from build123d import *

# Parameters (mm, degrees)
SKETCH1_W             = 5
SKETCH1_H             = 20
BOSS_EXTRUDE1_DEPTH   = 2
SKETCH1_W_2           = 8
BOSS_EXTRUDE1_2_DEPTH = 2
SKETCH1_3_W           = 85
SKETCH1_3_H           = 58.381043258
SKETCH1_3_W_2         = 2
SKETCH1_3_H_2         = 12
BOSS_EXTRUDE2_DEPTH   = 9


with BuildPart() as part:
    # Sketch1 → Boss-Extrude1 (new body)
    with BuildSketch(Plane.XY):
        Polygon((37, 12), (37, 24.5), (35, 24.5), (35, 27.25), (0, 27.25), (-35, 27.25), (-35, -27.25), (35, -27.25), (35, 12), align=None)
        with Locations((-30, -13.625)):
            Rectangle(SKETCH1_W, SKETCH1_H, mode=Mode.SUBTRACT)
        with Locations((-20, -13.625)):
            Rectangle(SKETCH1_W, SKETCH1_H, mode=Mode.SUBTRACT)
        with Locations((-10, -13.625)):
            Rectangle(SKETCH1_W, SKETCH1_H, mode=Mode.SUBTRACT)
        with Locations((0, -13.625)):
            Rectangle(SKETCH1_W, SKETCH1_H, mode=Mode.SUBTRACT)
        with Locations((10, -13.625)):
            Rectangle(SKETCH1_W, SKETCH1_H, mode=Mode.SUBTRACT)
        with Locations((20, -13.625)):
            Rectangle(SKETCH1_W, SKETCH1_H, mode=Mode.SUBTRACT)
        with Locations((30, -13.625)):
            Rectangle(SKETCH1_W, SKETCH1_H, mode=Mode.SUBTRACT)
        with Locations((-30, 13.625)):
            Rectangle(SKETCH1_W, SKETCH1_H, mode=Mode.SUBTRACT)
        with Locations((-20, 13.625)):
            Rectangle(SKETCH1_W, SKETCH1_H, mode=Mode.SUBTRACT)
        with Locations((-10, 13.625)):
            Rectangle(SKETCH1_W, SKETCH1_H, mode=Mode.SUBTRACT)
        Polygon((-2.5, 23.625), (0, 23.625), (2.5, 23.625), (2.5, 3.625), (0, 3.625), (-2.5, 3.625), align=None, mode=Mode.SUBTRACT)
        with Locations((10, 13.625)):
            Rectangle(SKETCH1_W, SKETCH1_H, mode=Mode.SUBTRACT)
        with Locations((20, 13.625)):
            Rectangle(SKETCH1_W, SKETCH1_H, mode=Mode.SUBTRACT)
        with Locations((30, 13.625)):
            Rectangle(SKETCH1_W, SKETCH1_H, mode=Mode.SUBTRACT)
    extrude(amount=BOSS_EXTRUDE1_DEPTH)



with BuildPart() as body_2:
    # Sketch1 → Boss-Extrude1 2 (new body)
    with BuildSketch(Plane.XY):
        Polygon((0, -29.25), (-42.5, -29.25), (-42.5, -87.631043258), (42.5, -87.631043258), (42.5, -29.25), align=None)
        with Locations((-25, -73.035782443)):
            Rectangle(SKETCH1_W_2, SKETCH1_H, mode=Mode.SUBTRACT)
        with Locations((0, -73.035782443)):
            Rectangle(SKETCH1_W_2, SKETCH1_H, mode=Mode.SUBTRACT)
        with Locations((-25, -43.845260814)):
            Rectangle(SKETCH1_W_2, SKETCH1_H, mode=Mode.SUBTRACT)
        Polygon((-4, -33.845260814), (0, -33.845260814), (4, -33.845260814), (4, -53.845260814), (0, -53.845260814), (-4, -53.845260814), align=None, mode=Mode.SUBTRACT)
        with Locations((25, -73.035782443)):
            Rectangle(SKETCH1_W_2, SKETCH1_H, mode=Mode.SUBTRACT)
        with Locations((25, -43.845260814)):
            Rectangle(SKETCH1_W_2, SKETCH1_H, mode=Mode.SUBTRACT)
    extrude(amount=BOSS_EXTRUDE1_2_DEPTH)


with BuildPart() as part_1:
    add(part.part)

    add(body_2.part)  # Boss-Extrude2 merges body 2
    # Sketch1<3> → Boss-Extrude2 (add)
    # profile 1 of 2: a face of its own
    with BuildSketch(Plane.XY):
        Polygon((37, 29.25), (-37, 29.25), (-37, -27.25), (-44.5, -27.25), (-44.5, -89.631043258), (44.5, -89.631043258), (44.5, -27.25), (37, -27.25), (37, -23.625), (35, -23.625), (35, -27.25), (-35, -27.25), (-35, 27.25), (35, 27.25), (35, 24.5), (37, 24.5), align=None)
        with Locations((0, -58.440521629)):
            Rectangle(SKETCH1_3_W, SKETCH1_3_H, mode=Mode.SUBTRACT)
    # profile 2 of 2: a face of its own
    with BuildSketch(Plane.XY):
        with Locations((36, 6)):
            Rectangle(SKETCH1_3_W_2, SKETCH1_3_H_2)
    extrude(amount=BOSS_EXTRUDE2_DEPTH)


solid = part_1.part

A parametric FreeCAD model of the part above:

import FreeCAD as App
import Part
import Sketcher

V = App.Vector
Q = App.Units.Quantity


def add_polygon(sketch, points):
    """Adds a closed chain of lines whose ends are joined by coincident constraints."""
    first, n = sketch.GeometryCount, len(points)
    for a, b in zip(points, points[1:] + points[:1]):
        sketch.addGeometry(Part.LineSegment(App.Vector(*a, 0), App.Vector(*b, 0)), False)
    for i in range(n):
        sketch.addConstraint(Sketcher.Constraint("Coincident", first + i, 2, first + (i + 1) % n, 1))

doc = App.newDocument("Part")
body = doc.addObject("PartDesign::Body", "Body")

# Sketch on XY plane
sketch1 = body.newObject("Sketcher::SketchObject", "Sketch")
sketch1.AttachmentSupport = (doc.getObject("XY_Plane"), [""])
sketch1.MapMode = "FlatFace"
add_polygon(sketch1, [(37, 12), (37, 24.5), (35, 24.5), (35, 27.2), (-35, 27.2), (-35, -27.2), (35, -27.2), (35, 12)])  # lines 0-7
add_polygon(sketch1, [(-27.5, -23.6), (-32.5, -23.6), (-32.5, -3.6), (-27.5, -3.6)])  # lines 8-11
add_polygon(sketch1, [(-17.5, -23.6), (-22.5, -23.6), (-22.5, -3.6), (-17.5, -3.6)])  # lines 12-15
add_polygon(sketch1, [(-7.5, -23.6), (-12.5, -23.6), (-12.5, -3.6), (-7.5, -3.6)])  # lines 16-19
add_polygon(sketch1, [(2.5, -23.6), (-2.5, -23.6), (-2.5, -3.6), (2.5, -3.6)])  # lines 20-23
add_polygon(sketch1, [(12.5, -23.6), (7.5, -23.6), (7.5, -3.6), (12.5, -3.6)])  # lines 24-27
add_polygon(sketch1, [(22.5, -23.6), (17.5, -23.6), (17.5, -3.6), (22.5, -3.6)])  # lines 28-31
add_polygon(sketch1, [(32.5, -23.6), (27.5, -23.6), (27.5, -3.6), (32.5, -3.6)])  # lines 32-35
add_polygon(sketch1, [(-27.5, 3.6), (-32.5, 3.6), (-32.5, 23.6), (-27.5, 23.6)])  # lines 36-39
add_polygon(sketch1, [(-17.5, 3.6), (-22.5, 3.6), (-22.5, 23.6), (-17.5, 23.6)])  # lines 40-43
add_polygon(sketch1, [(-7.5, 3.6), (-12.5, 3.6), (-12.5, 23.6), (-7.5, 23.6)])  # lines 44-47
add_polygon(sketch1, [(-2.5, 3.6), (-2.5, 23.6), (2.5, 23.6), (2.5, 3.6)])  # lines 48-51
add_polygon(sketch1, [(12.5, 3.6), (7.5, 3.6), (7.5, 23.6), (12.5, 23.6)])  # lines 52-55
add_polygon(sketch1, [(22.5, 3.6), (17.5, 3.6), (17.5, 23.6), (22.5, 23.6)])  # lines 56-59
add_polygon(sketch1, [(32.5, 3.6), (27.5, 3.6), (27.5, 23.6), (32.5, 23.6)])  # lines 60-63
sketch1.addConstraint(Sketcher.Constraint("Vertical", 0))
sketch1.addConstraint(Sketcher.Constraint("Horizontal", 1))
sketch1.addConstraint(Sketcher.Constraint("Vertical", 2))
sketch1.addConstraint(Sketcher.Constraint("Horizontal", 3))
sketch1.addConstraint(Sketcher.Constraint("Vertical", 4))
sketch1.addConstraint(Sketcher.Constraint("Horizontal", 5))
sketch1.addConstraint(Sketcher.Constraint("Vertical", 6))
sketch1.addConstraint(Sketcher.Constraint("Horizontal", 7))
sketch1.addConstraint(Sketcher.Constraint("Horizontal", 8))
sketch1.addConstraint(Sketcher.Constraint("Vertical", 9))
sketch1.addConstraint(Sketcher.Constraint("Horizontal", 10))
sketch1.addConstraint(Sketcher.Constraint("Vertical", 11))
sketch1.addConstraint(Sketcher.Constraint("Horizontal", 12))
sketch1.addConstraint(Sketcher.Constraint("Vertical", 13))
sketch1.addConstraint(Sketcher.Constraint("Horizontal", 14))
sketch1.addConstraint(Sketcher.Constraint("Vertical", 15))
sketch1.addConstraint(Sketcher.Constraint("Horizontal", 16))
sketch1.addConstraint(Sketcher.Constraint("Vertical", 17))
sketch1.addConstraint(Sketcher.Constraint("Horizontal", 18))
sketch1.addConstraint(Sketcher.Constraint("Vertical", 19))
sketch1.addConstraint(Sketcher.Constraint("Horizontal", 20))
sketch1.addConstraint(Sketcher.Constraint("Vertical", 21))
sketch1.addConstraint(Sketcher.Constraint("Horizontal", 22))
sketch1.addConstraint(Sketcher.Constraint("Vertical", 23))
sketch1.addConstraint(Sketcher.Constraint("Horizontal", 24))
sketch1.addConstraint(Sketcher.Constraint("Vertical", 25))
sketch1.addConstraint(Sketcher.Constraint("Horizontal", 26))
sketch1.addConstraint(Sketcher.Constraint("Vertical", 27))
sketch1.addConstraint(Sketcher.Constraint("Horizontal", 28))
sketch1.addConstraint(Sketcher.Constraint("Vertical", 29))
sketch1.addConstraint(Sketcher.Constraint("Horizontal", 30))
sketch1.addConstraint(Sketcher.Constraint("Vertical", 31))
sketch1.addConstraint(Sketcher.Constraint("Horizontal", 32))
sketch1.addConstraint(Sketcher.Constraint("Vertical", 33))
sketch1.addConstraint(Sketcher.Constraint("Horizontal", 34))
sketch1.addConstraint(Sketcher.Constraint("Vertical", 35))
sketch1.addConstraint(Sketcher.Constraint("Horizontal", 36))
sketch1.addConstraint(Sketcher.Constraint("Vertical", 37))
sketch1.addConstraint(Sketcher.Constraint("Horizontal", 38))
sketch1.addConstraint(Sketcher.Constraint("Vertical", 39))
sketch1.addConstraint(Sketcher.Constraint("Horizontal", 40))
sketch1.addConstraint(Sketcher.Constraint("Vertical", 41))
sketch1.addConstraint(Sketcher.Constraint("Horizontal", 42))
sketch1.addConstraint(Sketcher.Constraint("Vertical", 43))
sketch1.addConstraint(Sketcher.Constraint("Horizontal", 44))
sketch1.addConstraint(Sketcher.Constraint("Vertical", 45))
sketch1.addConstraint(Sketcher.Constraint("Horizontal", 46))
sketch1.addConstraint(Sketcher.Constraint("Vertical", 47))
sketch1.addConstraint(Sketcher.Constraint("Vertical", 48))
sketch1.addConstraint(Sketcher.Constraint("Horizontal", 49))
sketch1.addConstraint(Sketcher.Constraint("Vertical", 50))
sketch1.addConstraint(Sketcher.Constraint("Horizontal", 51))
sketch1.addConstraint(Sketcher.Constraint("Horizontal", 52))
sketch1.addConstraint(Sketcher.Constraint("Vertical", 53))
sketch1.addConstraint(Sketcher.Constraint("Horizontal", 54))
sketch1.addConstraint(Sketcher.Constraint("Vertical", 55))
sketch1.addConstraint(Sketcher.Constraint("Horizontal", 56))
sketch1.addConstraint(Sketcher.Constraint("Vertical", 57))
sketch1.addConstraint(Sketcher.Constraint("Horizontal", 58))
sketch1.addConstraint(Sketcher.Constraint("Vertical", 59))
sketch1.addConstraint(Sketcher.Constraint("Horizontal", 60))
sketch1.addConstraint(Sketcher.Constraint("Vertical", 61))
sketch1.addConstraint(Sketcher.Constraint("Horizontal", 62))
sketch1.addConstraint(Sketcher.Constraint("Vertical", 63))
sketch1.addConstraint(Sketcher.Constraint("Symmetric", 2, 2, 4, 2, -1, 1))
sketch1.addConstraint(Sketcher.Constraint("Symmetric", 34, 2, 36, 2, -1, 1))
sketch1.addConstraint(Sketcher.Constraint("Symmetric", 32, 2, 38, 2, -1, 1))
sketch1.addConstraint(Sketcher.Constraint("Symmetric", 30, 2, 40, 2, -1, 1))
sketch1.addConstraint(Sketcher.Constraint("Symmetric", 28, 2, 42, 2, -1, 1))
sketch1.addConstraint(Sketcher.Constraint("Symmetric", 26, 2, 44, 2, -1, 1))
sketch1.addConstraint(Sketcher.Constraint("Symmetric", 24, 2, 46, 2, -1, 1))
sketch1.addConstraint(Sketcher.Constraint("Symmetric", 23, 2, 48, 2, -1, 1))
sketch1.addConstraint(Sketcher.Constraint("Symmetric", 21, 2, 50, 2, -1, 1))
sketch1.addConstraint(Sketcher.Constraint("Symmetric", 18, 2, 52, 2, -1, 1))
sketch1.addConstraint(Sketcher.Constraint("Symmetric", 16, 2, 54, 2, -1, 1))
sketch1.addConstraint(Sketcher.Constraint("Symmetric", 14, 2, 56, 2, -1, 1))
sketch1.addConstraint(Sketcher.Constraint("Symmetric", 12, 2, 58, 2, -1, 1))
sketch1.addConstraint(Sketcher.Constraint("Symmetric", 10, 2, 60, 2, -1, 1))
sketch1.addConstraint(Sketcher.Constraint("Symmetric", 8, 2, 62, 2, -1, 1))
sketch1.addConstraint(Sketcher.Constraint("Symmetric", 19, 2, 24, 2, -2))
sketch1.addConstraint(Sketcher.Constraint("Symmetric", 17, 2, 26, 2, -2))
sketch1.addConstraint(Sketcher.Constraint("Symmetric", 15, 2, 28, 2, -2))
sketch1.addConstraint(Sketcher.Constraint("Symmetric", 13, 2, 30, 2, -2))
sketch1.addConstraint(Sketcher.Constraint("Symmetric", 11, 2, 32, 2, -2))
sketch1.addConstraint(Sketcher.Constraint("Symmetric", 9, 2, 34, 2, -2))
sketch1.addConstraint(Sketcher.Constraint("Horizontal", 11, 2, 12, 2))
sketch1.addConstraint(Sketcher.Constraint("Horizontal", 10, 2, 13, 2))
sketch1.addConstraint(Sketcher.Constraint("Horizontal", 15, 2, 16, 2))
sketch1.addConstraint(Sketcher.Constraint("Horizontal", 14, 2, 17, 2))
sketch1.addConstraint(Sketcher.Constraint("Horizontal", 19, 2, 20, 2))
sketch1.addConstraint(Sketcher.Constraint("Horizontal", 18, 2, 21, 2))
sketch1.addConstraint(Sketcher.Constraint("Vertical", 2, 2, 5, 2))
sketch1.addConstraint(Sketcher.Constraint("Vertical", 21, 2, 48, 2))
sketch1.addConstraint(Sketcher.Constraint("Equal", 10, 12))
sketch1.addConstraint(Sketcher.Constraint("Equal", 14, 16))
sketch1.addConstraint(Sketcher.Constraint("Equal", 18, 20))
sketch1.addConstraint(Sketcher.Constraint("DistanceX", 1, 2, 1, 1, Q("2 mm")))
sketch1.addConstraint(Sketcher.Constraint("DistanceX", 3, 2, 3, 1, Q("70 mm")))
sketch1.addConstraint(Sketcher.Constraint("DistanceX", 8, 2, 8, 1, Q("5 mm")))
sketch1.addConstraint(Sketcher.Constraint("DistanceY", 9, 1, 9, 2, Q("20 mm")))
sketch1.addConstraint(Sketcher.Constraint("DistanceY", 0, 1, 0, 2, Q("12.5 mm")))
sketch1.addConstraint(Sketcher.Constraint("DistanceY", 4, 2, 4, 1, Q("54.5 mm")))
sketch1.addConstraint(Sketcher.Constraint("DistanceY", -1, 1, 6, 2, Q("12 mm")))
sketch1.addConstraint(Sketcher.Constraint("DistanceX", 8, 2, -1, 1, Q("32.5 mm")))
sketch1.addConstraint(Sketcher.Constraint("DistanceX", 12, 2, -1, 1, Q("22.5 mm")))
sketch1.addConstraint(Sketcher.Constraint("DistanceX", 16, 2, -1, 1, Q("12.5 mm")))
sketch1.addConstraint(Sketcher.Constraint("DistanceY", 8, 2, -1, 1, Q("23.625 mm")))
pad1 = body.newObject("PartDesign::Pad", "Pad")
pad1.Profile = sketch1
pad1.Length = 2
body2 = doc.addObject("PartDesign::Body", "Body001")

# Sketch on XY plane
sketch2 = body2.newObject("Sketcher::SketchObject", "Sketch001")
sketch2.AttachmentSupport = (doc.getObject("XY_Plane001"), [""])
sketch2.MapMode = "FlatFace"
add_polygon(sketch2, [(-42, -29), (-42, -88), (42, -88), (42, -29)])  # lines 0-3
add_polygon(sketch2, [(-21, -83), (-29, -83), (-29, -63), (-21, -63)])  # lines 4-7
add_polygon(sketch2, [(4, -83), (-4, -83), (-4, -63), (4, -63)])  # lines 8-11
add_polygon(sketch2, [(29, -83), (21, -83), (21, -63), (29, -63)])  # lines 12-15
add_polygon(sketch2, [(-21, -54), (-29, -54), (-29, -34), (-21, -34)])  # lines 16-19
add_polygon(sketch2, [(-4, -54), (-4, -34), (4, -34), (4, -54)])  # lines 20-23
add_polygon(sketch2, [(29, -54), (21, -54), (21, -34), (29, -34)])  # lines 24-27
sketch2.addConstraint(Sketcher.Constraint("Vertical", 0))
sketch2.addConstraint(Sketcher.Constraint("Horizontal", 1))
sketch2.addConstraint(Sketcher.Constraint("Vertical", 2))
sketch2.addConstraint(Sketcher.Constraint("Horizontal", 3))
sketch2.addConstraint(Sketcher.Constraint("Horizontal", 4))
sketch2.addConstraint(Sketcher.Constraint("Vertical", 5))
sketch2.addConstraint(Sketcher.Constraint("Horizontal", 6))
sketch2.addConstraint(Sketcher.Constraint("Vertical", 7))
sketch2.addConstraint(Sketcher.Constraint("Horizontal", 8))
sketch2.addConstraint(Sketcher.Constraint("Vertical", 9))
sketch2.addConstraint(Sketcher.Constraint("Horizontal", 10))
sketch2.addConstraint(Sketcher.Constraint("Vertical", 11))
sketch2.addConstraint(Sketcher.Constraint("Horizontal", 12))
sketch2.addConstraint(Sketcher.Constraint("Vertical", 13))
sketch2.addConstraint(Sketcher.Constraint("Horizontal", 14))
sketch2.addConstraint(Sketcher.Constraint("Vertical", 15))
sketch2.addConstraint(Sketcher.Constraint("Horizontal", 16))
sketch2.addConstraint(Sketcher.Constraint("Vertical", 17))
sketch2.addConstraint(Sketcher.Constraint("Horizontal", 18))
sketch2.addConstraint(Sketcher.Constraint("Vertical", 19))
sketch2.addConstraint(Sketcher.Constraint("Vertical", 20))
sketch2.addConstraint(Sketcher.Constraint("Horizontal", 21))
sketch2.addConstraint(Sketcher.Constraint("Vertical", 22))
sketch2.addConstraint(Sketcher.Constraint("Horizontal", 23))
sketch2.addConstraint(Sketcher.Constraint("Horizontal", 24))
sketch2.addConstraint(Sketcher.Constraint("Vertical", 25))
sketch2.addConstraint(Sketcher.Constraint("Horizontal", 26))
sketch2.addConstraint(Sketcher.Constraint("Vertical", 27))
sketch2.addConstraint(Sketcher.Constraint("Symmetric", 7, 2, 12, 2, -2))
sketch2.addConstraint(Sketcher.Constraint("Symmetric", 5, 2, 14, 2, -2))
sketch2.addConstraint(Sketcher.Constraint("Symmetric", 19, 2, 24, 2, -2))
sketch2.addConstraint(Sketcher.Constraint("Symmetric", 17, 2, 26, 2, -2))
sketch2.addConstraint(Sketcher.Constraint("Horizontal", 7, 2, 8, 2))
sketch2.addConstraint(Sketcher.Constraint("Horizontal", 6, 2, 9, 2))
sketch2.addConstraint(Sketcher.Constraint("Horizontal", 18, 2, 20, 2))
sketch2.addConstraint(Sketcher.Constraint("Horizontal", 19, 2, 22, 2))
sketch2.addConstraint(Sketcher.Constraint("Vertical", 5, 2, 16, 2))
sketch2.addConstraint(Sketcher.Constraint("Vertical", 7, 2, 18, 2))
sketch2.addConstraint(Sketcher.Constraint("Vertical", 9, 2, 20, 2))
sketch2.addConstraint(Sketcher.Constraint("Vertical", 11, 2, 21, 2))
sketch2.addConstraint(Sketcher.Constraint("Equal", 6, 8))
sketch2.addConstraint(Sketcher.Constraint("Equal", 15, 17))
sketch2.addConstraint(Sketcher.Constraint("DistanceX", 1, 1, 1, 2, Q("85 mm")))
sketch2.addConstraint(Sketcher.Constraint("DistanceX", 4, 2, 4, 1, Q("8 mm")))
sketch2.addConstraint(Sketcher.Constraint("DistanceY", 5, 1, 5, 2, Q("20 mm")))
sketch2.addConstraint(Sketcher.Constraint("DistanceX", 4, 2, -1, 1, Q("29 mm")))
sketch2.addConstraint(Sketcher.Constraint("DistanceX", 8, 2, -1, 1, Q("4 mm")))
sketch2.addConstraint(Sketcher.Constraint("DistanceX", 0, 2, -1, 1, Q("42.5 mm")))
sketch2.addConstraint(Sketcher.Constraint("DistanceY", 2, 2, -1, 1, Q("29.25 mm")))
sketch2.addConstraint(Sketcher.Constraint("DistanceY", 0, 2, 0, 1, Q("58.381043 mm")))
sketch2.addConstraint(Sketcher.Constraint("DistanceY", 16, 2, -1, 1, Q("53.845261 mm")))
sketch2.addConstraint(Sketcher.Constraint("DistanceY", 0, 2, 4, 2, Q("4.595261 mm")))
pad2 = body2.newObject("PartDesign::Pad", "Pad001")
pad2.Profile = sketch2
pad2.Length = 2
body.AllowCompound = True
doc.recompute()

boolean = body.newObject("PartDesign::Boolean", "Boolean")
boolean.Type = "Fuse"
boolean.addObjects([body2])

# Sketch on XY plane
sketch3 = body.newObject("Sketcher::SketchObject", "Sketch002")
sketch3.AttachmentSupport = (doc.getObject("XY_Plane"), [""])
sketch3.MapMode = "FlatFace"
add_polygon(sketch3, [(37, 29.2), (-37, 29.2), (-37, -27.2), (-44.5, -27.2), (-44.5, -89.6), (44.5, -89.6), (44.5, -27.2), (37, -27.2), (37, -23.6), (35, -23.6), (35, -27.2), (-35, -27.2), (-35, 27.2), (35, 27.2), (35, 24.5), (37, 24.5)])  # lines 0-15
add_polygon(sketch3, [(42.5, -87.6), (-42.5, -87.6), (-42.5, -29.2), (42.5, -29.2)])  # lines 16-19
add_polygon(sketch3, [(35, 12), (35, 0), (37, 0), (37, 12)])  # lines 20-23
sketch3.addConstraint(Sketcher.Constraint("Horizontal", 0))
sketch3.addConstraint(Sketcher.Constraint("Vertical", 1))
sketch3.addConstraint(Sketcher.Constraint("Horizontal", 2))
sketch3.addConstraint(Sketcher.Constraint("Vertical", 3))
sketch3.addConstraint(Sketcher.Constraint("Horizontal", 4))
sketch3.addConstraint(Sketcher.Constraint("Vertical", 5))
sketch3.addConstraint(Sketcher.Constraint("Horizontal", 6))
sketch3.addConstraint(Sketcher.Constraint("Vertical", 7))
sketch3.addConstraint(Sketcher.Constraint("Horizontal", 8))
sketch3.addConstraint(Sketcher.Constraint("Vertical", 9))
sketch3.addConstraint(Sketcher.Constraint("Horizontal", 10))
sketch3.addConstraint(Sketcher.Constraint("Vertical", 11))
sketch3.addConstraint(Sketcher.Constraint("Horizontal", 12))
sketch3.addConstraint(Sketcher.Constraint("Vertical", 13))
sketch3.addConstraint(Sketcher.Constraint("Horizontal", 14))
sketch3.addConstraint(Sketcher.Constraint("Vertical", 15))
sketch3.addConstraint(Sketcher.Constraint("Horizontal", 16))
sketch3.addConstraint(Sketcher.Constraint("Vertical", 17))
sketch3.addConstraint(Sketcher.Constraint("Horizontal", 18))
sketch3.addConstraint(Sketcher.Constraint("Vertical", 19))
sketch3.addConstraint(Sketcher.Constraint("Vertical", 20))
sketch3.addConstraint(Sketcher.Constraint("Horizontal", 21))
sketch3.addConstraint(Sketcher.Constraint("Vertical", 22))
sketch3.addConstraint(Sketcher.Constraint("Horizontal", 23))
sketch3.addConstraint(Sketcher.Constraint("Symmetric", 9, 2, 11, 2, -1, 1))
sketch3.addConstraint(Sketcher.Constraint("Symmetric", 2, 2, 5, 2, -2))
sketch3.addConstraint(Sketcher.Constraint("PointOnObject", 20, 2, -1))
sketch3.addConstraint(Sketcher.Constraint("Horizontal", 6, 2, 9, 2))
sketch3.addConstraint(Sketcher.Constraint("Vertical", 9, 2, 12, 2))
sketch3.addConstraint(Sketcher.Constraint("Vertical", 7, 2, 14, 2))
sketch3.addConstraint(Sketcher.Constraint("Vertical", 13, 2, 20, 2))
sketch3.addConstraint(Sketcher.Constraint("Vertical", 15, 2, 21, 2))
sketch3.addConstraint(Sketcher.Constraint("Equal", 2, 6))
sketch3.addConstraint(Sketcher.Constraint("DistanceX", 0, 2, 0, 1, Q("74 mm")))
sketch3.addConstraint(Sketcher.Constraint("DistanceX", 4, 1, 4, 2, Q("89 mm")))
sketch3.addConstraint(Sketcher.Constraint("DistanceX", 8, 2, 8, 1, Q("2 mm")))
sketch3.addConstraint(Sketcher.Constraint("DistanceX", 16, 2, 16, 1, Q("85 mm")))
sketch3.addConstraint(Sketcher.Constraint("DistanceY", 20, 2, 20, 1, Q("12 mm")))
sketch3.addConstraint(Sketcher.Constraint("DistanceY", 1, 2, 1, 1, Q("56.5 mm")))
sketch3.addConstraint(Sketcher.Constraint("DistanceY", 11, 1, 11, 2, Q("54.5 mm")))
sketch3.addConstraint(Sketcher.Constraint("DistanceX", 3, 2, 16, 2, Q("2 mm")))
sketch3.addConstraint(Sketcher.Constraint("DistanceY", 3, 2, 16, 2, Q("2 mm")))
sketch3.addConstraint(Sketcher.Constraint("DistanceY", 17, 2, 2, 2, Q("2 mm")))
sketch3.addConstraint(Sketcher.Constraint("DistanceY", 13, 2, 13, 1, Q("2.75 mm")))
sketch3.addConstraint(Sketcher.Constraint("DistanceY", 7, 1, 7, 2, Q("3.625 mm")))
sketch3.addConstraint(Sketcher.Constraint("DistanceY", 3, 2, 3, 1, Q("62.381043 mm")))
pad3 = body.newObject("PartDesign::Pad", "Pad002")
pad3.Profile = sketch3
pad3.Length = 9

doc.recompute()
